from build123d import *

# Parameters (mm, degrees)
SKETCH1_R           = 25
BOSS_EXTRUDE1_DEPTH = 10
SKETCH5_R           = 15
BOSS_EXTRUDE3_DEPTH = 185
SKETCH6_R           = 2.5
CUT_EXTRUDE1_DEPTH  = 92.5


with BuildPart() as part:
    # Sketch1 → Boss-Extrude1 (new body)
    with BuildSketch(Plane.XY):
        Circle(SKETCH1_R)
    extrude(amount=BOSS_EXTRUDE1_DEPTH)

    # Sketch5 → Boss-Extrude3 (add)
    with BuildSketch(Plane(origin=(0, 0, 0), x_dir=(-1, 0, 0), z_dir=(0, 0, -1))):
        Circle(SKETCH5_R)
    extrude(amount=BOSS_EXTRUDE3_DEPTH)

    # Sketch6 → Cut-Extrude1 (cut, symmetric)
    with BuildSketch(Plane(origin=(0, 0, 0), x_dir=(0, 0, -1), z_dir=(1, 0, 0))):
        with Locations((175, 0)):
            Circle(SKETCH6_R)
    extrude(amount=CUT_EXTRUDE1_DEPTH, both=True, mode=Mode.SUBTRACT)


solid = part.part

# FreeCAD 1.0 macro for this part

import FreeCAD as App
import Part
import Sketcher
from FreeCAD import Vector

doc = App.newDocument("Part")
body = doc.addObject("PartDesign::Body", "Body")

# Sketch on XY plane
sketch1 = body.newObject("Sketcher::SketchObject", "Sketch")
sketch1.AttachmentSupport = (doc.getObject("XY_Plane"), [""])
sketch1.MapMode = "FlatFace"
sketch1.addGeometry(Part.Circle(Vector(0, 0, 0), Vector(0, 0, 1), 25), False)
sketch1.addConstraint([
    Sketcher.Constraint("Coincident", 0, 3, -1, 1),
    Sketcher.Constraint("Diameter", 0, 50.0),
])
pad1 = body.newObject("PartDesign::Pad", "Pad")
pad1.Profile = sketch1
pad1.Length = 10

# Sketch on XY plane
sketch2 = body.newObject("Sketcher::SketchObject", "Sketch001")
sketch2.AttachmentSupport = (doc.getObject("XY_Plane"), [""])
sketch2.MapMode = "FlatFace"
sketch2.addGeometry(Part.Circle(Vector(0, 0, 0), Vector(0, 0, 1), 15), False)
sketch2.addConstraint([
    Sketcher.Constraint("Coincident", 0, 3, -1, 1),
    Sketcher.Constraint("Diameter", 0, 30.0),
])
pad2 = body.newObject("PartDesign::Pad", "Pad001")
pad2.Profile = sketch2
pad2.Length = 185
pad2.Reversed = True

# Sketch on YZ plane
sketch3 = body.newObject("Sketcher::SketchObject", "Sketch002")
sketch3.AttachmentSupport = (doc.getObject("YZ_Plane"), [""])
sketch3.MapMode = "FlatFace"
sketch3.addGeometry(Part.Circle(Vector(0, -175, 0), Vector(0, 0, 1), 2.5), False)
sketch3.addConstraint([
    Sketcher.Constraint("PointOnObject", 0, 3, -2),
    Sketcher.Constraint("Diameter", 0, 5.0),
    Sketcher.Constraint("DistanceY", 0, 3, -1, 1, 175.0),
])
pocket1 = body.newObject("PartDesign::Pocket", "Pocket")
pocket1.Profile = sketch3
pocket1.Length = 185
pocket1.Midplane = True

doc.recompute()
